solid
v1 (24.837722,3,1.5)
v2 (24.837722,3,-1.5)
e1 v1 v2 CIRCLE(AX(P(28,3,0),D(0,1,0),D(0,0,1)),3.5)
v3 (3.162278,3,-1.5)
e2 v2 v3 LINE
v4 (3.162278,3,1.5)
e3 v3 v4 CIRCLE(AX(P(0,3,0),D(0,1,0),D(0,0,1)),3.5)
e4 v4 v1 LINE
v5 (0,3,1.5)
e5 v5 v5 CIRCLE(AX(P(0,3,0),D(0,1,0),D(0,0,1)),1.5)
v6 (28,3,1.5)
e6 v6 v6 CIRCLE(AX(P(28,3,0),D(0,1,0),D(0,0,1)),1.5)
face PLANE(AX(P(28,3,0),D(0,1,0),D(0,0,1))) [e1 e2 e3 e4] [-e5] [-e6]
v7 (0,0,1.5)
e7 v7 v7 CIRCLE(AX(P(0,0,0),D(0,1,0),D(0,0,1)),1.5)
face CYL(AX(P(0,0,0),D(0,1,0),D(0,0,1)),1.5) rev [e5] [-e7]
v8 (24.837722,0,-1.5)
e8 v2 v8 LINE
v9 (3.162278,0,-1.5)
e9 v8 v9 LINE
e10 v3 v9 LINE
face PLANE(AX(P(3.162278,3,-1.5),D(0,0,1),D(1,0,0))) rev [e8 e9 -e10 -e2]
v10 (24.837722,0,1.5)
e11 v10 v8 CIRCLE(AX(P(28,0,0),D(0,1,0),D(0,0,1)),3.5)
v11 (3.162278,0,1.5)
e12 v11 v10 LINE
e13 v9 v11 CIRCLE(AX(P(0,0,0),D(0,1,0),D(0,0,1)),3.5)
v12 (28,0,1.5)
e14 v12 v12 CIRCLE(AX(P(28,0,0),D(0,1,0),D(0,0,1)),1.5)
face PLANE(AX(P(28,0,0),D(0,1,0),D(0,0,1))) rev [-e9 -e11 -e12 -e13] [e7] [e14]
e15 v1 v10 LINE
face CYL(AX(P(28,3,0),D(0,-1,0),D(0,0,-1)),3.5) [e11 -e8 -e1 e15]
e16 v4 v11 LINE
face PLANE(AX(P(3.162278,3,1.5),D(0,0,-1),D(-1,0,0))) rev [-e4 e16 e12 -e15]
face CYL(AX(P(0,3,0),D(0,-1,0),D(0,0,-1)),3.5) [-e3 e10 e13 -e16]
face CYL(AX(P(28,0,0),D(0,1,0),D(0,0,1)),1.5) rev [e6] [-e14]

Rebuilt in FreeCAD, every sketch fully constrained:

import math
import FreeCAD as App
import Part
import Sketcher
from FreeCAD import Vector

doc = App.newDocument("Part")
body = doc.addObject("PartDesign::Body", "Body")

sketch1 = body.newObject("Sketcher::SketchObject", "Sketch")
sketch1.AttachmentSupport = (doc.getObject("XZ_Plane"), [""])
sketch1.MapMode = "FlatFace"
sketch1.addGeometry([
    Part.LineSegment(Vector(24.8, -1.5, 0), Vector(3.2, -1.5, 0)),
    Part.ArcOfCircle(Part.Circle(Vector(0, 0, 0), Vector(0, 0, 1), 3.5), math.radians(25), math.radians(335)),
    Part.LineSegment(Vector(3.2, 1.5, 0), Vector(24.8, 1.5, 0)),
    Part.ArcOfCircle(Part.Circle(Vector(28, 0, 0), Vector(0, 0, 1), 3.5), math.radians(-155), math.radians(155)),
], False)
sketch1.addConstraint([
    Sketcher.Constraint("Coincident", 0, 2, 1, 2),
    Sketcher.Constraint("Coincident", 1, 1, 2, 1),
    Sketcher.Constraint("Coincident", 2, 2, 3, 2),
    Sketcher.Constraint("Coincident", 3, 1, 0, 1),
    Sketcher.Constraint("Horizontal", 0),
    Sketcher.Constraint("Horizontal", 2),
    Sketcher.Constraint("Coincident", 1, 3, -1, 1),
    Sketcher.Constraint("Equal", 1, 3),
    Sketcher.Constraint("Symmetric", 2, 2, 3, 1, -1),
    Sketcher.Constraint("Radius", 1, 3.5),
    Sketcher.Constraint("DistanceX", -1, 1, 3, 3, 28.0),
    Sketcher.Constraint("DistanceY", 0, 2, 1, 1, 3.0),
])
pad1 = body.newObject("PartDesign::Pad", "Pad")
pad1.Profile = sketch1
pad1.Length = 3
pad1.Reversed = True

sketch2 = body.newObject("Sketcher::SketchObject", "Sketch001")
sketch2.AttachmentSupport = (doc.getObject("XZ_Plane"), [""])
sketch2.MapMode = "FlatFace"
sketch2.AttachmentOffset = App.Placement(Vector(0, 0, -3), App.Rotation())
sketch2.addGeometry([
    Part.Circle(Vector(0, 0, 0), Vector(0, 0, 1), 1.5),
    Part.Circle(Vector(28, 0, 0), Vector(0, 0, 1), 1.5),
], False)
sketch2.addConstraint([
    Sketcher.Constraint("Coincident", 0, 3, -1, 1),
    Sketcher.Constraint("Equal", 0, 1),
    Sketcher.Constraint("PointOnObject", 1, 3, -1),
    Sketcher.Constraint("Diameter", 0, 3.0),
    Sketcher.Constraint("DistanceX", -1, 1, 1, 3, 28.0),
])
pocket1 = body.newObject("PartDesign::Pocket", "Pocket")
pocket1.Profile = sketch2
pocket1.Length = 3
pocket1.Reversed = True

doc.recompute()
